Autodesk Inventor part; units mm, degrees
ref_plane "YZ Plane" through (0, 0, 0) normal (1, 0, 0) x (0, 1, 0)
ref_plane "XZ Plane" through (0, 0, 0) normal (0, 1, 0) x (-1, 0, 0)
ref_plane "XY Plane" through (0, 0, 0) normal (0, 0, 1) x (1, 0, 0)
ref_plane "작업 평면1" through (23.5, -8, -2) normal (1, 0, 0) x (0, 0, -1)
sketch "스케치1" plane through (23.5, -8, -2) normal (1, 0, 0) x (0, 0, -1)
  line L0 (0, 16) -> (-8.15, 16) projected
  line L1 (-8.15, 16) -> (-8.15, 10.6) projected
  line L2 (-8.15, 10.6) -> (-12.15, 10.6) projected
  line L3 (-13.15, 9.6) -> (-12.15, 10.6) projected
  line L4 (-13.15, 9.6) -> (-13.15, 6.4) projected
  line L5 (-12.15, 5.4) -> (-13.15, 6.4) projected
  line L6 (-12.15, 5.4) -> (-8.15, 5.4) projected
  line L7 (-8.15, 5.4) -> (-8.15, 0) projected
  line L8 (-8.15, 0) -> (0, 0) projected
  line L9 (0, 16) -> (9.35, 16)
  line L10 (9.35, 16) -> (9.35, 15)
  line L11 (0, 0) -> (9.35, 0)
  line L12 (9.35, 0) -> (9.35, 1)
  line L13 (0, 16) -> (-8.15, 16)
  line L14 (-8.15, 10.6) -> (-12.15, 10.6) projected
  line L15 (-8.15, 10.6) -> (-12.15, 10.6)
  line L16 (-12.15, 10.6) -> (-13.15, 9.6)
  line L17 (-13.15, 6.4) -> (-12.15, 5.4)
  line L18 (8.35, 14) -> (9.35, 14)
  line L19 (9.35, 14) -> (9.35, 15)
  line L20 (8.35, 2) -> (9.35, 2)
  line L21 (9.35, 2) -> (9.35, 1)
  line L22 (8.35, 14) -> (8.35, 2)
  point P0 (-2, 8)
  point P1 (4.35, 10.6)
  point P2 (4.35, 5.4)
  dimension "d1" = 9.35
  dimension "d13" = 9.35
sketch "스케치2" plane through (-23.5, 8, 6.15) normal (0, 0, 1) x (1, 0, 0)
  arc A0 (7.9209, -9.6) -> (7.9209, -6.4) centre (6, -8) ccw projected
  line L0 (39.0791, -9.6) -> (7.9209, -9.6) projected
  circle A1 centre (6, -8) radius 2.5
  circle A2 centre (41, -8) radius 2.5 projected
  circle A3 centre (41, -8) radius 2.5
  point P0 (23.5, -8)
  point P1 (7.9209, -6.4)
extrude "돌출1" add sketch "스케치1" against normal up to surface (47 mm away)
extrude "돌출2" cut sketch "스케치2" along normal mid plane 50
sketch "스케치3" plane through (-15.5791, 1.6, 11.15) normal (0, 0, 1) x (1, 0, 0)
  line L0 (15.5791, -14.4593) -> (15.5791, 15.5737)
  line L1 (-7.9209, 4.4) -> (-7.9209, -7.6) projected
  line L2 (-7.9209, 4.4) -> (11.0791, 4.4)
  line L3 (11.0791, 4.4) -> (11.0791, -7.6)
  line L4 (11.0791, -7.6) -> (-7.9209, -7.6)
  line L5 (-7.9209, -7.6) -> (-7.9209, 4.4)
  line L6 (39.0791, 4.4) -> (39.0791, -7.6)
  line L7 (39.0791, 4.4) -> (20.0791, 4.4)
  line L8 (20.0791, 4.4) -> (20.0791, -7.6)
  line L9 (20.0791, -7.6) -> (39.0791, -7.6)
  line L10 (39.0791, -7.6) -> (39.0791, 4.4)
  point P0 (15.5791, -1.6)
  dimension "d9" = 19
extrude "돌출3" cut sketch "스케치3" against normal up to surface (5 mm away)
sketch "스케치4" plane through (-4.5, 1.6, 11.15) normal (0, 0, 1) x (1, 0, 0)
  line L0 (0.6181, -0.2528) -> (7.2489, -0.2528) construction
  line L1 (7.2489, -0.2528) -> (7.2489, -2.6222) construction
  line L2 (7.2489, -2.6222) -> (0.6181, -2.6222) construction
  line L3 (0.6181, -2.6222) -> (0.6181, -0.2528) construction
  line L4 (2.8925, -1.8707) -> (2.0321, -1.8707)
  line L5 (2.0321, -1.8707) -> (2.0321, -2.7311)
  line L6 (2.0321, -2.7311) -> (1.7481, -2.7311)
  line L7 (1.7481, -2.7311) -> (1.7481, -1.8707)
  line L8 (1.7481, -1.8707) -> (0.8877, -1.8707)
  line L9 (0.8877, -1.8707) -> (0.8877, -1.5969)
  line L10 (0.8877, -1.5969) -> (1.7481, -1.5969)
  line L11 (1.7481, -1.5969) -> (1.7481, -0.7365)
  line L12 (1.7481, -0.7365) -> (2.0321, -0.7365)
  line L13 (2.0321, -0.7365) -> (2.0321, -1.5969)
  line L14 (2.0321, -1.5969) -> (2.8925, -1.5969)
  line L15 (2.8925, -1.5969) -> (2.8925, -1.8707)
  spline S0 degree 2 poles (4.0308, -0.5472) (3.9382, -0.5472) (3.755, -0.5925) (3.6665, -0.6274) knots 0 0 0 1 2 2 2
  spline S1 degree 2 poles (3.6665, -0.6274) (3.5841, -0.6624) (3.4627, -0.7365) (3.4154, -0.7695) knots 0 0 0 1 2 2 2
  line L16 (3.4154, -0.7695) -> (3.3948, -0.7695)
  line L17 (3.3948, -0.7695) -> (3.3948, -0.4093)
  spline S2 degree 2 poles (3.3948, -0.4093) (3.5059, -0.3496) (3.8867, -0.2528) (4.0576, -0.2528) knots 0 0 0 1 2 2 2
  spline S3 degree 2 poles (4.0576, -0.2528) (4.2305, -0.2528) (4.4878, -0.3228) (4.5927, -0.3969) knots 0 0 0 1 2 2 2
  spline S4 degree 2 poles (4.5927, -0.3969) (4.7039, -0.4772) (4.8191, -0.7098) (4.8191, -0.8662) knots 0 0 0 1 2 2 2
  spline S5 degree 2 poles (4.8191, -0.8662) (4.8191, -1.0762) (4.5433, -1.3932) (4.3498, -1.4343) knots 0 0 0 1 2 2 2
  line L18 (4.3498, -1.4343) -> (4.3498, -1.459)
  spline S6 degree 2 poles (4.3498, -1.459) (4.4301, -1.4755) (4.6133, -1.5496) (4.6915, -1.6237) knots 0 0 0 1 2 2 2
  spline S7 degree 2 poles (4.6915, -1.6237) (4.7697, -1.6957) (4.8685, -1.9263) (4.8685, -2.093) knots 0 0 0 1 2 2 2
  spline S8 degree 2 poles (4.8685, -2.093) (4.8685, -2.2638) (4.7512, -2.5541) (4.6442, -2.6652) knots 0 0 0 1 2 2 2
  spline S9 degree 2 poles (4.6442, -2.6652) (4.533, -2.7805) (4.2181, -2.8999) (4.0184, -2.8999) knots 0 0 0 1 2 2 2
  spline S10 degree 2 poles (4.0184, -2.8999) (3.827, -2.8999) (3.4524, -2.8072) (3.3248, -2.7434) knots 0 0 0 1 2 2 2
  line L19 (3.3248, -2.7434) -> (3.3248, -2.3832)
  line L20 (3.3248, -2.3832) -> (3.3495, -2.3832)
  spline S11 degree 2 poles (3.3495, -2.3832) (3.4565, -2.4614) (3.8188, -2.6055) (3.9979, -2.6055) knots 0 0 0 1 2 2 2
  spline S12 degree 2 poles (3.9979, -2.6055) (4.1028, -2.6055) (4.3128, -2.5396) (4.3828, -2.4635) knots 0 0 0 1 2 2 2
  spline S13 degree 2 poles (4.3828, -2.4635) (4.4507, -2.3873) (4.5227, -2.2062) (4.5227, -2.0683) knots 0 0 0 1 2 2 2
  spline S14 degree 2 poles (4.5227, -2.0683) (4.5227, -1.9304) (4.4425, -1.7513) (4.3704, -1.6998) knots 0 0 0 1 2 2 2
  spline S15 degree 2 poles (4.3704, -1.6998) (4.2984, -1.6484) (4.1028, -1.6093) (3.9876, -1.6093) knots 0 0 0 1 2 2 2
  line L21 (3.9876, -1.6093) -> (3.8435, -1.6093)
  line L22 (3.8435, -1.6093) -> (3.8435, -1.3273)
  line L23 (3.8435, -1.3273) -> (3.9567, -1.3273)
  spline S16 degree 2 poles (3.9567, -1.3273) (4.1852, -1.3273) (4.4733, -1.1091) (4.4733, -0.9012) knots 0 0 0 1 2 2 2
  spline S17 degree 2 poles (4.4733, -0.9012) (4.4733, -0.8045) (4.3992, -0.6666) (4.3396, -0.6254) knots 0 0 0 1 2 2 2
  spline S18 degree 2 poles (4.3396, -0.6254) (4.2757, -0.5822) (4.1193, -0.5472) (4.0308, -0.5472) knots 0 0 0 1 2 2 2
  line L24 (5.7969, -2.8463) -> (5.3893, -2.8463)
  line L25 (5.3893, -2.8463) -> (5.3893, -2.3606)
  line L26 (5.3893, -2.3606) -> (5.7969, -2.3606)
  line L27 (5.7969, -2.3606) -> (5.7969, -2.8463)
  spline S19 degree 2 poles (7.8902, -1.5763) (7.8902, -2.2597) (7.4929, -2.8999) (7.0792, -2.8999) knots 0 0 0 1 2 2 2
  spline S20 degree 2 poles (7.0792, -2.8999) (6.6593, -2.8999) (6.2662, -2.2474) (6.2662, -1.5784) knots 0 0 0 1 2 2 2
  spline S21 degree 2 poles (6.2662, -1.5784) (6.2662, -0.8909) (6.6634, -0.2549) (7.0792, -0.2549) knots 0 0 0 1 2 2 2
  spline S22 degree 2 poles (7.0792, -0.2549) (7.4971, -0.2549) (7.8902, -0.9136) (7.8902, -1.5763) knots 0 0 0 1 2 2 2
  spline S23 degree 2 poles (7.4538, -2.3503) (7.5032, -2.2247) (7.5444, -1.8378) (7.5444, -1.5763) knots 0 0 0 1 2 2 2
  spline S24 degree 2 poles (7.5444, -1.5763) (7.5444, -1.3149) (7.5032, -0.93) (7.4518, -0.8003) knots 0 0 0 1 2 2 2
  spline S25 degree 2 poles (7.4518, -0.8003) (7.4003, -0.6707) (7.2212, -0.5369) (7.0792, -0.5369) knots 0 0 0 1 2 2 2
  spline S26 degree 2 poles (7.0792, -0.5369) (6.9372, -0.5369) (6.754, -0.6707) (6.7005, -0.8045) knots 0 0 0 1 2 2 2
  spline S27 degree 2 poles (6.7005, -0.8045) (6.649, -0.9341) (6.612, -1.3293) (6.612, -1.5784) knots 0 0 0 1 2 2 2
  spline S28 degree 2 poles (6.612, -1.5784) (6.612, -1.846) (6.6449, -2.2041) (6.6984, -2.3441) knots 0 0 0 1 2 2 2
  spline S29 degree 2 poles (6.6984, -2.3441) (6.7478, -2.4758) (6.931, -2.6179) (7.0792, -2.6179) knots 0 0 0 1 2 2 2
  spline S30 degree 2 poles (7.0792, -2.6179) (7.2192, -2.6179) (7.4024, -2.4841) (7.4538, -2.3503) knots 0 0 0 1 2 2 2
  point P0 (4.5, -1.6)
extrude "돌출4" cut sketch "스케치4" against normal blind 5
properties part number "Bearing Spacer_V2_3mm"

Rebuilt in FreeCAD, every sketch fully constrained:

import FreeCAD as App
import Part
import Sketcher
from FreeCAD import Vector

doc = App.newDocument("Part")
body = doc.addObject("PartDesign::Body", "Body")

sketch1 = body.newObject("Sketcher::SketchObject", "Sketch")
sketch1.AttachmentSupport = (doc.getObject("YZ_Plane"), [""])
sketch1.MapMode = "FlatFace"
sketch1.AttachmentOffset = App.Placement(Vector(0, 0, 23.5), App.Rotation())
sketch1.addGeometry([
    Part.LineSegment(Vector(8, -11.35, 0), Vector(8, 6.15, 0)),
    Part.LineSegment(Vector(8, 6.15, 0), Vector(2.6, 6.15, 0)),
    Part.LineSegment(Vector(2.6, 6.15, 0), Vector(2.6, 10.15, 0)),
    Part.LineSegment(Vector(2.6, 10.15, 0), Vector(1.6, 11.15, 0)),
    Part.LineSegment(Vector(1.6, 11.15, 0), Vector(-1.6, 11.15, 0)),
    Part.LineSegment(Vector(-1.6, 11.15, 0), Vector(-2.6, 10.15, 0)),
    Part.LineSegment(Vector(-2.6, 10.15, 0), Vector(-2.6, 6.15, 0)),
    Part.LineSegment(Vector(-2.6, 6.15, 0), Vector(-8, 6.15, 0)),
    Part.LineSegment(Vector(-8, 6.15, 0), Vector(-8, -11.35, 0)),
    Part.LineSegment(Vector(-8, -11.35, 0), Vector(-6, -11.35, 0)),
    Part.LineSegment(Vector(-6, -11.35, 0), Vector(-6, -10.35, 0)),
    Part.LineSegment(Vector(-6, -10.35, 0), Vector(6, -10.35, 0)),
    Part.LineSegment(Vector(6, -10.35, 0), Vector(6, -11.35, 0)),
    Part.LineSegment(Vector(6, -11.35, 0), Vector(8, -11.35, 0)),
], False)
sketch1.addConstraint([
    Sketcher.Constraint("Coincident", 0, 2, 1, 1),
    Sketcher.Constraint("Coincident", 1, 2, 2, 1),
    Sketcher.Constraint("Coincident", 2, 2, 3, 1),
    Sketcher.Constraint("Coincident", 3, 2, 4, 1),
    Sketcher.Constraint("Coincident", 4, 2, 5, 1),
    Sketcher.Constraint("Coincident", 5, 2, 6, 1),
    Sketcher.Constraint("Coincident", 6, 2, 7, 1),
    Sketcher.Constraint("Coincident", 7, 2, 8, 1),
    Sketcher.Constraint("Coincident", 8, 2, 9, 1),
    Sketcher.Constraint("Coincident", 9, 2, 10, 1),
    Sketcher.Constraint("Coincident", 10, 2, 11, 1),
    Sketcher.Constraint("Coincident", 11, 2, 12, 1),
    Sketcher.Constraint("Coincident", 12, 2, 13, 1),
    Sketcher.Constraint("Coincident", 13, 2, 0, 1),
    Sketcher.Constraint("Vertical", 0),
    Sketcher.Constraint("Horizontal", 1),
    Sketcher.Constraint("Vertical", 2),
    Sketcher.Constraint("Horizontal", 4),
    Sketcher.Constraint("Vertical", 6),
    Sketcher.Constraint("Horizontal", 7),
    Sketcher.Constraint("Vertical", 8),
    Sketcher.Constraint("Horizontal", 9),
    Sketcher.Constraint("Vertical", 10),
    Sketcher.Constraint("Horizontal", 11),
    Sketcher.Constraint("Vertical", 12),
    Sketcher.Constraint("Horizontal", 13),
    Sketcher.Constraint("Symmetric", 2, 2, 5, 2, -2),
    Sketcher.Constraint("Symmetric", 0, 2, 7, 2, -2),
    Sketcher.Constraint("Symmetric", 9, 2, 12, 2, -2),
    Sketcher.Constraint("Perpendicular", 3, 5),
    Sketcher.Constraint("Equal", 3, 5),
    Sketcher.Constraint("DistanceX", 9, 1, 9, 2, 2.0),
    Sketcher.Constraint("DistanceX", 11, 1, 11, 2, 12.0),
    Sketcher.Constraint("DistanceY", 2, 1, 2, 2, 4.0),
    Sketcher.Constraint("DistanceY", 10, 1, 10, 2, 1.0),
    Sketcher.Constraint("DistanceX", 1, 2, 1, 1, 5.4),
    Sketcher.Constraint("DistanceX", 4, 2, 4, 1, 3.2),
    Sketcher.Constraint("DistanceY", 0, 1, 0, 2, 17.5),
    Sketcher.Constraint("DistanceY", -1, 1, 0, 2, 6.15),
])
pad1 = body.newObject("PartDesign::Pad", "Pad")
pad1.Profile = sketch1
pad1.Length = 47
pad1.Reversed = True

sketch2 = body.newObject("Sketcher::SketchObject", "Sketch001")
sketch2.AttachmentSupport = (doc.getObject("XY_Plane"), [""])
sketch2.MapMode = "FlatFace"
sketch2.AttachmentOffset = App.Placement(Vector(0, 0, 6.15), App.Rotation())
sketch2.addGeometry([
    Part.Circle(Vector(-17.5, 0, 0), Vector(0, 0, 1), 2.499971),
    Part.Circle(Vector(17.5, 0, 0), Vector(0, 0, 1), 2.5),
], False)
sketch2.addConstraint([
    Sketcher.Constraint("Equal", 0, 1),
    Sketcher.Constraint("Symmetric", 0, 3, 1, 3, -1, 1),
    Sketcher.Constraint("PointOnObject", 0, 3, -1),
    Sketcher.Constraint("Diameter", 0, 5.0),
    Sketcher.Constraint("DistanceX", 0, 3, 1, 3, 35.0),
])
pocket1 = body.newObject("PartDesign::Pocket", "Pocket")
pocket1.Profile = sketch2
pocket1.Length = 50
pocket1.Midplane = True

sketch3 = body.newObject("Sketcher::SketchObject", "Sketch002")
sketch3.AttachmentSupport = (doc.getObject("XY_Plane"), [""])
sketch3.MapMode = "FlatFace"
sketch3.AttachmentOffset = App.Placement(Vector(0, 0, 11.15), App.Rotation())
sketch3.addGeometry([
    Part.LineSegment(Vector(-4.5, 6, 0), Vector(-23.5, 6, 0)),
    Part.LineSegment(Vector(-23.5, 6, 0), Vector(-23.5, -6, 0)),
    Part.LineSegment(Vector(-23.5, -6, 0), Vector(-4.5, -6, 0)),
    Part.LineSegment(Vector(-4.5, -6, 0), Vector(-4.5, 6, 0)),
    Part.LineSegment(Vector(23.5, -6, 0), Vector(23.5, 6, 0)),
    Part.LineSegment(Vector(23.5, 6, 0), Vector(4.5, 6, 0)),
    Part.LineSegment(Vector(4.5, 6, 0), Vector(4.5, -6, 0)),
    Part.LineSegment(Vector(4.5, -6, 0), Vector(23.5, -6, 0)),
], False)
sketch3.addConstraint([
    Sketcher.Constraint("Coincident", 0, 2, 1, 1),
    Sketcher.Constraint("Coincident", 1, 2, 2, 1),
    Sketcher.Constraint("Coincident", 2, 2, 3, 1),
    Sketcher.Constraint("Coincident", 3, 2, 0, 1),
    Sketcher.Constraint("Coincident", 4, 2, 5, 1),
    Sketcher.Constraint("Coincident", 5, 2, 6, 1),
    Sketcher.Constraint("Coincident", 6, 2, 7, 1),
    Sketcher.Constraint("Coincident", 7, 2, 4, 1),
    Sketcher.Constraint("Horizontal", 0),
    Sketcher.Constraint("Vertical", 1),
    Sketcher.Constraint("Horizontal", 2),
    Sketcher.Constraint("Vertical", 3),
    Sketcher.Constraint("Vertical", 4),
    Sketcher.Constraint("Horizontal", 5),
    Sketcher.Constraint("Vertical", 6),
    Sketcher.Constraint("Horizontal", 7),
    Sketcher.Constraint("Symmetric", 1, 2, 4, 2, -1, 1),
    Sketcher.Constraint("Symmetric", 3, 2, 6, 2, -1, 1),
    Sketcher.Constraint("Horizontal", 3, 2, 4, 2),
    Sketcher.Constraint("DistanceX", 0, 2, 0, 1, 19.0),
    Sketcher.Constraint("DistanceY", 1, 2, 1, 1, 12.0),
    Sketcher.Constraint("DistanceX", 3, 2, 4, 2, 28.0),
])
pocket2 = body.newObject("PartDesign::Pocket", "Pocket001")
pocket2.Profile = sketch3
pocket2.Length = 5

sketch4 = body.newObject("Sketcher::SketchObject", "Sketch003")
sketch4.AttachmentSupport = (doc.getObject("XY_Plane"), [""])
sketch4.MapMode = "FlatFace"
sketch4.AttachmentOffset = App.Placement(Vector(0, 0, 11.15), App.Rotation())
sketch4.addGeometry([
    Part.LineSegment(Vector(-2.4679, -0.2707, 0), Vector(-1.6075, -0.2707, 0)),
    Part.LineSegment(Vector(-1.6075, -0.2707, 0), Vector(-1.6075, 0.0031, 0)),
    Part.LineSegment(Vector(-1.6075, 0.0031, 0), Vector(-2.4679, 0.0031, 0)),
    Part.LineSegment(Vector(-2.4679, 0.0031, 0), Vector(-2.4679, 0.8635, 0)),
    Part.LineSegment(Vector(-2.4679, 0.8635, 0), Vector(-2.7519, 0.8635, 0)),
    Part.LineSegment(Vector(-2.7519, 0.8635, 0), Vector(-2.7519, 0.0031, 0)),
    Part.LineSegment(Vector(-2.7519, 0.0031, 0), Vector(-3.6123, 0.0031, 0)),
    Part.LineSegment(Vector(-3.6123, 0.0031, 0), Vector(-3.6123, -0.2707, 0)),
    Part.LineSegment(Vector(-3.6123, -0.2707, 0), Vector(-2.7519, -0.2707, 0)),
    Part.LineSegment(Vector(-2.7519, -0.2707, 0), Vector(-2.7519, -1.1311, 0)),
    Part.LineSegment(Vector(-2.7519, -1.1311, 0), Vector(-2.4679, -1.1311, 0)),
    Part.LineSegment(Vector(-2.4679, -1.1311, 0), Vector(-2.4679, -0.2707, 0)),
    Part.BSplineCurve([Vector(-0.4692, 1.0528, 0), Vector(-0.5618, 1.0528, 0), Vector(-0.745, 1.0075, 0), Vector(-0.8335, 0.9726, 0)], [3, 1, 3], [0, 1, 2], False, 2, [1, 1, 1, 1], False),
    Part.BSplineCurve([Vector(-0.1604, 0.9746, 0), Vector(-0.2243, 1.0178, 0), Vector(-0.3807, 1.0528, 0), Vector(-0.4692, 1.0528, 0)], [3, 1, 3], [0, 1, 2], False, 2, [1, 1, 1, 1], False),
    Part.BSplineCurve([Vector(-0.0267, 0.6988, 0), Vector(-0.0267, 0.7955, 0), Vector(-0.1008, 0.9334, 0), Vector(-0.1604, 0.9746, 0)], [3, 1, 3], [0, 1, 2], False, 2, [1, 1, 1, 1], False),
    Part.BSplineCurve([Vector(-0.5433, 0.2727, 0), Vector(-0.3148, 0.2727, 0), Vector(-0.0267, 0.4909, 0), Vector(-0.0267, 0.6988, 0)], [3, 1, 3], [0, 1, 2], False, 2, [1, 1, 1, 1], False),
    Part.LineSegment(Vector(-0.5433, 0.2727, 0), Vector(-0.6565, 0.2727, 0)),
    Part.LineSegment(Vector(-0.6565, 0.2727, 0), Vector(-0.6565, -0.0093, 0)),
    Part.LineSegment(Vector(-0.6565, -0.0093, 0), Vector(-0.5124, -0.0093, 0)),
    Part.BSplineCurve([Vector(-0.1296, -0.0998, 0), Vector(-0.2016, -0.0484, 0), Vector(-0.3972, -0.0093, 0), Vector(-0.5124, -0.0093, 0)], [3, 1, 3], [0, 1, 2], False, 2, [1, 1, 1, 1], False),
    Part.BSplineCurve([Vector(0.0227, -0.4683, 0), Vector(0.0227, -0.3304, 0), Vector(-0.0575, -0.1513, 0), Vector(-0.1296, -0.0998, 0)], [3, 1, 3], [0, 1, 2], False, 2, [1, 1, 1, 1], False),
    Part.BSplineCurve([Vector(-0.1172, -0.8635, 0), Vector(-0.0493, -0.7873, 0), Vector(0.0227, -0.6062, 0), Vector(0.0227, -0.4683, 0)], [3, 1, 3], [0, 1, 2], False, 2, [1, 1, 1, 1], False),
    Part.BSplineCurve([Vector(-0.5021, -1.0055, 0), Vector(-0.3972, -1.0055, 0), Vector(-0.1872, -0.9396, 0), Vector(-0.1172, -0.8635, 0)], [3, 1, 3], [0, 1, 2], False, 2, [1, 1, 1, 1], False),
    Part.BSplineCurve([Vector(-1.1505, -0.7832, 0), Vector(-1.0435, -0.8614, 0), Vector(-0.6812, -1.0055, 0), Vector(-0.5021, -1.0055, 0)], [3, 1, 3], [0, 1, 2], False, 2, [1, 1, 1, 1], False),
    Part.LineSegment(Vector(-1.1505, -0.7832, 0), Vector(-1.1752, -0.7832, 0)),
    Part.LineSegment(Vector(-1.1752, -0.7832, 0), Vector(-1.1752, -1.1434, 0)),
    Part.BSplineCurve([Vector(-0.4816, -1.2999, 0), Vector(-0.673, -1.2999, 0), Vector(-1.0476, -1.2072, 0), Vector(-1.1752, -1.1434, 0)], [3, 1, 3], [0, 1, 2], False, 2, [1, 1, 1, 1], False),
    Part.BSplineCurve([Vector(0.1442, -1.0652, 0), Vector(0.033, -1.1805, 0), Vector(-0.2819, -1.2999, 0), Vector(-0.4816, -1.2999, 0)], [3, 1, 3], [0, 1, 2], False, 2, [1, 1, 1, 1], False),
    Part.BSplineCurve([Vector(0.3685, -0.493, 0), Vector(0.3685, -0.6638, 0), Vector(0.2512, -0.9541, 0), Vector(0.1442, -1.0652, 0)], [3, 1, 3], [0, 1, 2], False, 2, [1, 1, 1, 1], False),
    Part.BSplineCurve([Vector(0.1915, -0.0237, 0), Vector(0.2697, -0.0957, 0), Vector(0.3685, -0.3263, 0), Vector(0.3685, -0.493, 0)], [3, 1, 3], [0, 1, 2], False, 2, [1, 1, 1, 1], False),
    Part.BSplineCurve([Vector(-0.1502, 0.141, 0), Vector(-0.0699, 0.1245, 0), Vector(0.1133, 0.0504, 0), Vector(0.1915, -0.0237, 0)], [3, 1, 3], [0, 1, 2], False, 2, [1, 1, 1, 1], False),
    Part.LineSegment(Vector(-0.1502, 0.141, 0), Vector(-0.1502, 0.1657, 0)),
    Part.BSplineCurve([Vector(0.3191, 0.7338, 0), Vector(0.3191, 0.5238, 0), Vector(0.0433, 0.2068, 0), Vector(-0.1502, 0.1657, 0)], [3, 1, 3], [0, 1, 2], False, 2, [1, 1, 1, 1], False),
    Part.BSplineCurve([Vector(0.0927, 1.2031, 0), Vector(0.2039, 1.1228, 0), Vector(0.3191, 0.8902, 0), Vector(0.3191, 0.7338, 0)], [3, 1, 3], [0, 1, 2], False, 2, [1, 1, 1, 1], False),
    Part.BSplineCurve([Vector(-0.4424, 1.3472, 0), Vector(-0.2695, 1.3472, 0), Vector(-0.0122, 1.2772, 0), Vector(0.0927, 1.2031, 0)], [3, 1, 3], [0, 1, 2], False, 2, [1, 1, 1, 1], False),
    Part.BSplineCurve([Vector(-1.1052, 1.1907, 0), Vector(-0.9941, 1.2504, 0), Vector(-0.6133, 1.3472, 0), Vector(-0.4424, 1.3472, 0)], [3, 1, 3], [0, 1, 2], False, 2, [1, 1, 1, 1], False),
    Part.LineSegment(Vector(-1.1052, 1.1907, 0), Vector(-1.1052, 0.8305, 0)),
    Part.LineSegment(Vector(-1.1052, 0.8305, 0), Vector(-1.0846, 0.8305, 0)),
    Part.BSplineCurve([Vector(-0.8335, 0.9726, 0), Vector(-0.9159, 0.9376, 0), Vector(-1.0373, 0.8635, 0), Vector(-1.0846, 0.8305, 0)], [3, 1, 3], [0, 1, 2], False, 2, [1, 1, 1, 1], False),
    Part.LineSegment(Vector(0.8893, -1.2463, 0), Vector(1.2969, -1.2463, 0)),
    Part.LineSegment(Vector(1.2969, -1.2463, 0), Vector(1.2969, -0.7606, 0)),
    Part.LineSegment(Vector(1.2969, -0.7606, 0), Vector(0.8893, -0.7606, 0)),
    Part.LineSegment(Vector(0.8893, -0.7606, 0), Vector(0.8893, -1.2463, 0)),
    Part.BSplineCurve([Vector(3.3902, 0.0237, 0), Vector(3.3902, -0.6597, 0), Vector(2.9929, -1.2999, 0), Vector(2.5792, -1.2999, 0)], [3, 1, 3], [0, 1, 2], False, 2, [1, 1, 1, 1], False),
    Part.BSplineCurve([Vector(2.5792, 1.3451, 0), Vector(2.9971, 1.3451, 0), Vector(3.3902, 0.6864, 0), Vector(3.3902, 0.0237, 0)], [3, 1, 3], [0, 1, 2], False, 2, [1, 1, 1, 1], False),
    Part.BSplineCurve([Vector(1.7662, 0.0216, 0), Vector(1.7662, 0.7091, 0), Vector(2.1634, 1.3451, 0), Vector(2.5792, 1.3451, 0)], [3, 1, 3], [0, 1, 2], False, 2, [1, 1, 1, 1], False),
    Part.BSplineCurve([Vector(2.5792, -1.2999, 0), Vector(2.1593, -1.2999, 0), Vector(1.7662, -0.6474, 0), Vector(1.7662, 0.0216, 0)], [3, 1, 3], [0, 1, 2], False, 2, [1, 1, 1, 1], False),
    Part.BSplineCurve([Vector(2.9538, -0.7503, 0), Vector(3.0032, -0.6247, 0), Vector(3.0444, -0.2378, 0), Vector(3.0444, 0.0237, 0)], [3, 1, 3], [0, 1, 2], False, 2, [1, 1, 1, 1], False),
    Part.BSplineCurve([Vector(2.5792, -1.0179, 0), Vector(2.7192, -1.0179, 0), Vector(2.9024, -0.8841, 0), Vector(2.9538, -0.7503, 0)], [3, 1, 3], [0, 1, 2], False, 2, [1, 1, 1, 1], False),
    Part.BSplineCurve([Vector(2.1984, -0.7441, 0), Vector(2.2478, -0.8758, 0), Vector(2.431, -1.0179, 0), Vector(2.5792, -1.0179, 0)], [3, 1, 3], [0, 1, 2], False, 2, [1, 1, 1, 1], False),
    Part.BSplineCurve([Vector(2.112, 0.0216, 0), Vector(2.112, -0.246, 0), Vector(2.1449, -0.6041, 0), Vector(2.1984, -0.7441, 0)], [3, 1, 3], [0, 1, 2], False, 2, [1, 1, 1, 1], False),
    Part.BSplineCurve([Vector(2.2005, 0.7955, 0), Vector(2.149, 0.6659, 0), Vector(2.112, 0.2707, 0), Vector(2.112, 0.0216, 0)], [3, 1, 3], [0, 1, 2], False, 2, [1, 1, 1, 1], False),
    Part.BSplineCurve([Vector(2.5792, 1.0631, 0), Vector(2.4372, 1.0631, 0), Vector(2.254, 0.9293, 0), Vector(2.2005, 0.7955, 0)], [3, 1, 3], [0, 1, 2], False, 2, [1, 1, 1, 1], False),
    Part.BSplineCurve([Vector(2.9518, 0.7997, 0), Vector(2.9003, 0.9293, 0), Vector(2.7212, 1.0631, 0), Vector(2.5792, 1.0631, 0)], [3, 1, 3], [0, 1, 2], False, 2, [1, 1, 1, 1], False),
    Part.BSplineCurve([Vector(3.0444, 0.0237, 0), Vector(3.0444, 0.2851, 0), Vector(3.0032, 0.67, 0), Vector(2.9518, 0.7997, 0)], [3, 1, 3], [0, 1, 2], False, 2, [1, 1, 1, 1], False),
], False)
sketch4.addConstraint([
    Sketcher.Constraint("Block", 12),
    Sketcher.Constraint("Block", 13),
    Sketcher.Constraint("Block", 14),
    Sketcher.Constraint("Block", 15),
    Sketcher.Constraint("Block", 19),
    Sketcher.Constraint("Block", 20),
    Sketcher.Constraint("Block", 21),
    Sketcher.Constraint("Block", 22),
    Sketcher.Constraint("Block", 23),
    Sketcher.Constraint("Block", 26),
    Sketcher.Constraint("Block", 27),
    Sketcher.Constraint("Block", 28),
    Sketcher.Constraint("Block", 29),
    Sketcher.Constraint("Block", 30),
    Sketcher.Constraint("Block", 32),
    Sketcher.Constraint("Block", 33),
    Sketcher.Constraint("Block", 34),
    Sketcher.Constraint("Block", 35),
    Sketcher.Constraint("Block", 38),
    Sketcher.Constraint("Block", 43),
    Sketcher.Constraint("Block", 44),
    Sketcher.Constraint("Block", 45),
    Sketcher.Constraint("Block", 46),
    Sketcher.Constraint("Block", 47),
    Sketcher.Constraint("Block", 48),
    Sketcher.Constraint("Block", 49),
    Sketcher.Constraint("Block", 50),
    Sketcher.Constraint("Block", 51),
    Sketcher.Constraint("Block", 52),
    Sketcher.Constraint("Block", 53),
    Sketcher.Constraint("Block", 54),
    Sketcher.Constraint("Coincident", 0, 2, 1, 1),
    Sketcher.Constraint("Coincident", 1, 2, 2, 1),
    Sketcher.Constraint("Coincident", 2, 2, 3, 1),
    Sketcher.Constraint("Coincident", 3, 2, 4, 1),
    Sketcher.Constraint("Coincident", 4, 2, 5, 1),
    Sketcher.Constraint("Coincident", 5, 2, 6, 1),
    Sketcher.Constraint("Coincident", 6, 2, 7, 1),
    Sketcher.Constraint("Coincident", 7, 2, 8, 1),
    Sketcher.Constraint("Coincident", 8, 2, 9, 1),
    Sketcher.Constraint("Coincident", 9, 2, 10, 1),
    Sketcher.Constraint("Coincident", 10, 2, 11, 1),
    Sketcher.Constraint("Coincident", 11, 2, 0, 1),
    Sketcher.Constraint("Coincident", 15, 1, 16, 1),
    Sketcher.Constraint("Coincident", 16, 2, 17, 1),
    Sketcher.Constraint("Coincident", 17, 2, 18, 1),
    Sketcher.Constraint("Coincident", 18, 2, 19, 2),
    Sketcher.Constraint("Coincident", 23, 1, 24, 1),
    Sketcher.Constraint("Coincident", 24, 2, 25, 1),
    Sketcher.Constraint("Coincident", 25, 2, 26, 2),
    Sketcher.Constraint("Coincident", 30, 1, 31, 1),
    Sketcher.Constraint("Coincident", 31, 2, 32, 2),
    Sketcher.Constraint("Coincident", 35, 1, 36, 1),
    Sketcher.Constraint("Coincident", 36, 2, 37, 1),
    Sketcher.Constraint("Coincident", 37, 2, 38, 2),
    Sketcher.Constraint("Coincident", 39, 2, 40, 1),
    Sketcher.Constraint("Coincident", 40, 2, 41, 1),
    Sketcher.Constraint("Coincident", 41, 2, 42, 1),
    Sketcher.Constraint("Coincident", 42, 2, 39, 1),
    Sketcher.Constraint("Horizontal", 0),
    Sketcher.Constraint("Vertical", 1),
    Sketcher.Constraint("Horizontal", 2),
    Sketcher.Constraint("Vertical", 3),
    Sketcher.Constraint("Horizontal", 4),
    Sketcher.Constraint("Vertical", 5),
    Sketcher.Constraint("Horizontal", 6),
    Sketcher.Constraint("Vertical", 7),
    Sketcher.Constraint("Horizontal", 8),
    Sketcher.Constraint("Vertical", 9),
    Sketcher.Constraint("Horizontal", 10),
    Sketcher.Constraint("Vertical", 11),
    Sketcher.Constraint("Horizontal", 16),
    Sketcher.Constraint("Vertical", 17),
    Sketcher.Constraint("Horizontal", 18),
    Sketcher.Constraint("Horizontal", 24),
    Sketcher.Constraint("Vertical", 25),
    Sketcher.Constraint("Vertical", 36),
    Sketcher.Constraint("Horizontal", 37),
    Sketcher.Constraint("Horizontal", 39),
    Sketcher.Constraint("Vertical", 40),
    Sketcher.Constraint("Horizontal", 41),
    Sketcher.Constraint("Vertical", 42),
    Sketcher.Constraint("Horizontal", 2, 2, 5, 2),
    Sketcher.Constraint("Horizontal", 0, 2, 7, 2),
    Sketcher.Constraint("Vertical", 5, 2, 8, 2),
    Sketcher.Constraint("Vertical", 3, 2, 10, 2),
    Sketcher.Constraint("Equal", 2, 6),
    Sketcher.Constraint("Equal", 8, 3),
    Sketcher.Constraint("Equal", 5, 9),
    Sketcher.Constraint("DistanceX", 4, 2, 4, 1, 0.284),
    Sketcher.Constraint("DistanceX", 18, 1, 18, 2, 0.144),
    Sketcher.Constraint("DistanceX", 0, 1, 0, 2, 0.8604),
    Sketcher.Constraint("DistanceX", 39, 1, 39, 2, 0.4076),
    Sketcher.Constraint("DistanceY", 1, 1, 1, 2, 0.2738),
    Sketcher.Constraint("DistanceY", 40, 1, 40, 2, 0.4857),
    Sketcher.Constraint("DistanceY", -1, 1, 1, 2, 0.003),
    Sketcher.Constraint("DistanceX", 2, 2, -1, 1, 2.468),
    Sketcher.Constraint("DistanceX", -1, 1, 39, 2, 1.297),
    Sketcher.Constraint("DistanceY", 39, 2, 31, 2, 1.412),
])
pocket3 = body.newObject("PartDesign::Pocket", "Pocket002")
pocket3.Profile = sketch4
pocket3.Length = 5

doc.recompute()
